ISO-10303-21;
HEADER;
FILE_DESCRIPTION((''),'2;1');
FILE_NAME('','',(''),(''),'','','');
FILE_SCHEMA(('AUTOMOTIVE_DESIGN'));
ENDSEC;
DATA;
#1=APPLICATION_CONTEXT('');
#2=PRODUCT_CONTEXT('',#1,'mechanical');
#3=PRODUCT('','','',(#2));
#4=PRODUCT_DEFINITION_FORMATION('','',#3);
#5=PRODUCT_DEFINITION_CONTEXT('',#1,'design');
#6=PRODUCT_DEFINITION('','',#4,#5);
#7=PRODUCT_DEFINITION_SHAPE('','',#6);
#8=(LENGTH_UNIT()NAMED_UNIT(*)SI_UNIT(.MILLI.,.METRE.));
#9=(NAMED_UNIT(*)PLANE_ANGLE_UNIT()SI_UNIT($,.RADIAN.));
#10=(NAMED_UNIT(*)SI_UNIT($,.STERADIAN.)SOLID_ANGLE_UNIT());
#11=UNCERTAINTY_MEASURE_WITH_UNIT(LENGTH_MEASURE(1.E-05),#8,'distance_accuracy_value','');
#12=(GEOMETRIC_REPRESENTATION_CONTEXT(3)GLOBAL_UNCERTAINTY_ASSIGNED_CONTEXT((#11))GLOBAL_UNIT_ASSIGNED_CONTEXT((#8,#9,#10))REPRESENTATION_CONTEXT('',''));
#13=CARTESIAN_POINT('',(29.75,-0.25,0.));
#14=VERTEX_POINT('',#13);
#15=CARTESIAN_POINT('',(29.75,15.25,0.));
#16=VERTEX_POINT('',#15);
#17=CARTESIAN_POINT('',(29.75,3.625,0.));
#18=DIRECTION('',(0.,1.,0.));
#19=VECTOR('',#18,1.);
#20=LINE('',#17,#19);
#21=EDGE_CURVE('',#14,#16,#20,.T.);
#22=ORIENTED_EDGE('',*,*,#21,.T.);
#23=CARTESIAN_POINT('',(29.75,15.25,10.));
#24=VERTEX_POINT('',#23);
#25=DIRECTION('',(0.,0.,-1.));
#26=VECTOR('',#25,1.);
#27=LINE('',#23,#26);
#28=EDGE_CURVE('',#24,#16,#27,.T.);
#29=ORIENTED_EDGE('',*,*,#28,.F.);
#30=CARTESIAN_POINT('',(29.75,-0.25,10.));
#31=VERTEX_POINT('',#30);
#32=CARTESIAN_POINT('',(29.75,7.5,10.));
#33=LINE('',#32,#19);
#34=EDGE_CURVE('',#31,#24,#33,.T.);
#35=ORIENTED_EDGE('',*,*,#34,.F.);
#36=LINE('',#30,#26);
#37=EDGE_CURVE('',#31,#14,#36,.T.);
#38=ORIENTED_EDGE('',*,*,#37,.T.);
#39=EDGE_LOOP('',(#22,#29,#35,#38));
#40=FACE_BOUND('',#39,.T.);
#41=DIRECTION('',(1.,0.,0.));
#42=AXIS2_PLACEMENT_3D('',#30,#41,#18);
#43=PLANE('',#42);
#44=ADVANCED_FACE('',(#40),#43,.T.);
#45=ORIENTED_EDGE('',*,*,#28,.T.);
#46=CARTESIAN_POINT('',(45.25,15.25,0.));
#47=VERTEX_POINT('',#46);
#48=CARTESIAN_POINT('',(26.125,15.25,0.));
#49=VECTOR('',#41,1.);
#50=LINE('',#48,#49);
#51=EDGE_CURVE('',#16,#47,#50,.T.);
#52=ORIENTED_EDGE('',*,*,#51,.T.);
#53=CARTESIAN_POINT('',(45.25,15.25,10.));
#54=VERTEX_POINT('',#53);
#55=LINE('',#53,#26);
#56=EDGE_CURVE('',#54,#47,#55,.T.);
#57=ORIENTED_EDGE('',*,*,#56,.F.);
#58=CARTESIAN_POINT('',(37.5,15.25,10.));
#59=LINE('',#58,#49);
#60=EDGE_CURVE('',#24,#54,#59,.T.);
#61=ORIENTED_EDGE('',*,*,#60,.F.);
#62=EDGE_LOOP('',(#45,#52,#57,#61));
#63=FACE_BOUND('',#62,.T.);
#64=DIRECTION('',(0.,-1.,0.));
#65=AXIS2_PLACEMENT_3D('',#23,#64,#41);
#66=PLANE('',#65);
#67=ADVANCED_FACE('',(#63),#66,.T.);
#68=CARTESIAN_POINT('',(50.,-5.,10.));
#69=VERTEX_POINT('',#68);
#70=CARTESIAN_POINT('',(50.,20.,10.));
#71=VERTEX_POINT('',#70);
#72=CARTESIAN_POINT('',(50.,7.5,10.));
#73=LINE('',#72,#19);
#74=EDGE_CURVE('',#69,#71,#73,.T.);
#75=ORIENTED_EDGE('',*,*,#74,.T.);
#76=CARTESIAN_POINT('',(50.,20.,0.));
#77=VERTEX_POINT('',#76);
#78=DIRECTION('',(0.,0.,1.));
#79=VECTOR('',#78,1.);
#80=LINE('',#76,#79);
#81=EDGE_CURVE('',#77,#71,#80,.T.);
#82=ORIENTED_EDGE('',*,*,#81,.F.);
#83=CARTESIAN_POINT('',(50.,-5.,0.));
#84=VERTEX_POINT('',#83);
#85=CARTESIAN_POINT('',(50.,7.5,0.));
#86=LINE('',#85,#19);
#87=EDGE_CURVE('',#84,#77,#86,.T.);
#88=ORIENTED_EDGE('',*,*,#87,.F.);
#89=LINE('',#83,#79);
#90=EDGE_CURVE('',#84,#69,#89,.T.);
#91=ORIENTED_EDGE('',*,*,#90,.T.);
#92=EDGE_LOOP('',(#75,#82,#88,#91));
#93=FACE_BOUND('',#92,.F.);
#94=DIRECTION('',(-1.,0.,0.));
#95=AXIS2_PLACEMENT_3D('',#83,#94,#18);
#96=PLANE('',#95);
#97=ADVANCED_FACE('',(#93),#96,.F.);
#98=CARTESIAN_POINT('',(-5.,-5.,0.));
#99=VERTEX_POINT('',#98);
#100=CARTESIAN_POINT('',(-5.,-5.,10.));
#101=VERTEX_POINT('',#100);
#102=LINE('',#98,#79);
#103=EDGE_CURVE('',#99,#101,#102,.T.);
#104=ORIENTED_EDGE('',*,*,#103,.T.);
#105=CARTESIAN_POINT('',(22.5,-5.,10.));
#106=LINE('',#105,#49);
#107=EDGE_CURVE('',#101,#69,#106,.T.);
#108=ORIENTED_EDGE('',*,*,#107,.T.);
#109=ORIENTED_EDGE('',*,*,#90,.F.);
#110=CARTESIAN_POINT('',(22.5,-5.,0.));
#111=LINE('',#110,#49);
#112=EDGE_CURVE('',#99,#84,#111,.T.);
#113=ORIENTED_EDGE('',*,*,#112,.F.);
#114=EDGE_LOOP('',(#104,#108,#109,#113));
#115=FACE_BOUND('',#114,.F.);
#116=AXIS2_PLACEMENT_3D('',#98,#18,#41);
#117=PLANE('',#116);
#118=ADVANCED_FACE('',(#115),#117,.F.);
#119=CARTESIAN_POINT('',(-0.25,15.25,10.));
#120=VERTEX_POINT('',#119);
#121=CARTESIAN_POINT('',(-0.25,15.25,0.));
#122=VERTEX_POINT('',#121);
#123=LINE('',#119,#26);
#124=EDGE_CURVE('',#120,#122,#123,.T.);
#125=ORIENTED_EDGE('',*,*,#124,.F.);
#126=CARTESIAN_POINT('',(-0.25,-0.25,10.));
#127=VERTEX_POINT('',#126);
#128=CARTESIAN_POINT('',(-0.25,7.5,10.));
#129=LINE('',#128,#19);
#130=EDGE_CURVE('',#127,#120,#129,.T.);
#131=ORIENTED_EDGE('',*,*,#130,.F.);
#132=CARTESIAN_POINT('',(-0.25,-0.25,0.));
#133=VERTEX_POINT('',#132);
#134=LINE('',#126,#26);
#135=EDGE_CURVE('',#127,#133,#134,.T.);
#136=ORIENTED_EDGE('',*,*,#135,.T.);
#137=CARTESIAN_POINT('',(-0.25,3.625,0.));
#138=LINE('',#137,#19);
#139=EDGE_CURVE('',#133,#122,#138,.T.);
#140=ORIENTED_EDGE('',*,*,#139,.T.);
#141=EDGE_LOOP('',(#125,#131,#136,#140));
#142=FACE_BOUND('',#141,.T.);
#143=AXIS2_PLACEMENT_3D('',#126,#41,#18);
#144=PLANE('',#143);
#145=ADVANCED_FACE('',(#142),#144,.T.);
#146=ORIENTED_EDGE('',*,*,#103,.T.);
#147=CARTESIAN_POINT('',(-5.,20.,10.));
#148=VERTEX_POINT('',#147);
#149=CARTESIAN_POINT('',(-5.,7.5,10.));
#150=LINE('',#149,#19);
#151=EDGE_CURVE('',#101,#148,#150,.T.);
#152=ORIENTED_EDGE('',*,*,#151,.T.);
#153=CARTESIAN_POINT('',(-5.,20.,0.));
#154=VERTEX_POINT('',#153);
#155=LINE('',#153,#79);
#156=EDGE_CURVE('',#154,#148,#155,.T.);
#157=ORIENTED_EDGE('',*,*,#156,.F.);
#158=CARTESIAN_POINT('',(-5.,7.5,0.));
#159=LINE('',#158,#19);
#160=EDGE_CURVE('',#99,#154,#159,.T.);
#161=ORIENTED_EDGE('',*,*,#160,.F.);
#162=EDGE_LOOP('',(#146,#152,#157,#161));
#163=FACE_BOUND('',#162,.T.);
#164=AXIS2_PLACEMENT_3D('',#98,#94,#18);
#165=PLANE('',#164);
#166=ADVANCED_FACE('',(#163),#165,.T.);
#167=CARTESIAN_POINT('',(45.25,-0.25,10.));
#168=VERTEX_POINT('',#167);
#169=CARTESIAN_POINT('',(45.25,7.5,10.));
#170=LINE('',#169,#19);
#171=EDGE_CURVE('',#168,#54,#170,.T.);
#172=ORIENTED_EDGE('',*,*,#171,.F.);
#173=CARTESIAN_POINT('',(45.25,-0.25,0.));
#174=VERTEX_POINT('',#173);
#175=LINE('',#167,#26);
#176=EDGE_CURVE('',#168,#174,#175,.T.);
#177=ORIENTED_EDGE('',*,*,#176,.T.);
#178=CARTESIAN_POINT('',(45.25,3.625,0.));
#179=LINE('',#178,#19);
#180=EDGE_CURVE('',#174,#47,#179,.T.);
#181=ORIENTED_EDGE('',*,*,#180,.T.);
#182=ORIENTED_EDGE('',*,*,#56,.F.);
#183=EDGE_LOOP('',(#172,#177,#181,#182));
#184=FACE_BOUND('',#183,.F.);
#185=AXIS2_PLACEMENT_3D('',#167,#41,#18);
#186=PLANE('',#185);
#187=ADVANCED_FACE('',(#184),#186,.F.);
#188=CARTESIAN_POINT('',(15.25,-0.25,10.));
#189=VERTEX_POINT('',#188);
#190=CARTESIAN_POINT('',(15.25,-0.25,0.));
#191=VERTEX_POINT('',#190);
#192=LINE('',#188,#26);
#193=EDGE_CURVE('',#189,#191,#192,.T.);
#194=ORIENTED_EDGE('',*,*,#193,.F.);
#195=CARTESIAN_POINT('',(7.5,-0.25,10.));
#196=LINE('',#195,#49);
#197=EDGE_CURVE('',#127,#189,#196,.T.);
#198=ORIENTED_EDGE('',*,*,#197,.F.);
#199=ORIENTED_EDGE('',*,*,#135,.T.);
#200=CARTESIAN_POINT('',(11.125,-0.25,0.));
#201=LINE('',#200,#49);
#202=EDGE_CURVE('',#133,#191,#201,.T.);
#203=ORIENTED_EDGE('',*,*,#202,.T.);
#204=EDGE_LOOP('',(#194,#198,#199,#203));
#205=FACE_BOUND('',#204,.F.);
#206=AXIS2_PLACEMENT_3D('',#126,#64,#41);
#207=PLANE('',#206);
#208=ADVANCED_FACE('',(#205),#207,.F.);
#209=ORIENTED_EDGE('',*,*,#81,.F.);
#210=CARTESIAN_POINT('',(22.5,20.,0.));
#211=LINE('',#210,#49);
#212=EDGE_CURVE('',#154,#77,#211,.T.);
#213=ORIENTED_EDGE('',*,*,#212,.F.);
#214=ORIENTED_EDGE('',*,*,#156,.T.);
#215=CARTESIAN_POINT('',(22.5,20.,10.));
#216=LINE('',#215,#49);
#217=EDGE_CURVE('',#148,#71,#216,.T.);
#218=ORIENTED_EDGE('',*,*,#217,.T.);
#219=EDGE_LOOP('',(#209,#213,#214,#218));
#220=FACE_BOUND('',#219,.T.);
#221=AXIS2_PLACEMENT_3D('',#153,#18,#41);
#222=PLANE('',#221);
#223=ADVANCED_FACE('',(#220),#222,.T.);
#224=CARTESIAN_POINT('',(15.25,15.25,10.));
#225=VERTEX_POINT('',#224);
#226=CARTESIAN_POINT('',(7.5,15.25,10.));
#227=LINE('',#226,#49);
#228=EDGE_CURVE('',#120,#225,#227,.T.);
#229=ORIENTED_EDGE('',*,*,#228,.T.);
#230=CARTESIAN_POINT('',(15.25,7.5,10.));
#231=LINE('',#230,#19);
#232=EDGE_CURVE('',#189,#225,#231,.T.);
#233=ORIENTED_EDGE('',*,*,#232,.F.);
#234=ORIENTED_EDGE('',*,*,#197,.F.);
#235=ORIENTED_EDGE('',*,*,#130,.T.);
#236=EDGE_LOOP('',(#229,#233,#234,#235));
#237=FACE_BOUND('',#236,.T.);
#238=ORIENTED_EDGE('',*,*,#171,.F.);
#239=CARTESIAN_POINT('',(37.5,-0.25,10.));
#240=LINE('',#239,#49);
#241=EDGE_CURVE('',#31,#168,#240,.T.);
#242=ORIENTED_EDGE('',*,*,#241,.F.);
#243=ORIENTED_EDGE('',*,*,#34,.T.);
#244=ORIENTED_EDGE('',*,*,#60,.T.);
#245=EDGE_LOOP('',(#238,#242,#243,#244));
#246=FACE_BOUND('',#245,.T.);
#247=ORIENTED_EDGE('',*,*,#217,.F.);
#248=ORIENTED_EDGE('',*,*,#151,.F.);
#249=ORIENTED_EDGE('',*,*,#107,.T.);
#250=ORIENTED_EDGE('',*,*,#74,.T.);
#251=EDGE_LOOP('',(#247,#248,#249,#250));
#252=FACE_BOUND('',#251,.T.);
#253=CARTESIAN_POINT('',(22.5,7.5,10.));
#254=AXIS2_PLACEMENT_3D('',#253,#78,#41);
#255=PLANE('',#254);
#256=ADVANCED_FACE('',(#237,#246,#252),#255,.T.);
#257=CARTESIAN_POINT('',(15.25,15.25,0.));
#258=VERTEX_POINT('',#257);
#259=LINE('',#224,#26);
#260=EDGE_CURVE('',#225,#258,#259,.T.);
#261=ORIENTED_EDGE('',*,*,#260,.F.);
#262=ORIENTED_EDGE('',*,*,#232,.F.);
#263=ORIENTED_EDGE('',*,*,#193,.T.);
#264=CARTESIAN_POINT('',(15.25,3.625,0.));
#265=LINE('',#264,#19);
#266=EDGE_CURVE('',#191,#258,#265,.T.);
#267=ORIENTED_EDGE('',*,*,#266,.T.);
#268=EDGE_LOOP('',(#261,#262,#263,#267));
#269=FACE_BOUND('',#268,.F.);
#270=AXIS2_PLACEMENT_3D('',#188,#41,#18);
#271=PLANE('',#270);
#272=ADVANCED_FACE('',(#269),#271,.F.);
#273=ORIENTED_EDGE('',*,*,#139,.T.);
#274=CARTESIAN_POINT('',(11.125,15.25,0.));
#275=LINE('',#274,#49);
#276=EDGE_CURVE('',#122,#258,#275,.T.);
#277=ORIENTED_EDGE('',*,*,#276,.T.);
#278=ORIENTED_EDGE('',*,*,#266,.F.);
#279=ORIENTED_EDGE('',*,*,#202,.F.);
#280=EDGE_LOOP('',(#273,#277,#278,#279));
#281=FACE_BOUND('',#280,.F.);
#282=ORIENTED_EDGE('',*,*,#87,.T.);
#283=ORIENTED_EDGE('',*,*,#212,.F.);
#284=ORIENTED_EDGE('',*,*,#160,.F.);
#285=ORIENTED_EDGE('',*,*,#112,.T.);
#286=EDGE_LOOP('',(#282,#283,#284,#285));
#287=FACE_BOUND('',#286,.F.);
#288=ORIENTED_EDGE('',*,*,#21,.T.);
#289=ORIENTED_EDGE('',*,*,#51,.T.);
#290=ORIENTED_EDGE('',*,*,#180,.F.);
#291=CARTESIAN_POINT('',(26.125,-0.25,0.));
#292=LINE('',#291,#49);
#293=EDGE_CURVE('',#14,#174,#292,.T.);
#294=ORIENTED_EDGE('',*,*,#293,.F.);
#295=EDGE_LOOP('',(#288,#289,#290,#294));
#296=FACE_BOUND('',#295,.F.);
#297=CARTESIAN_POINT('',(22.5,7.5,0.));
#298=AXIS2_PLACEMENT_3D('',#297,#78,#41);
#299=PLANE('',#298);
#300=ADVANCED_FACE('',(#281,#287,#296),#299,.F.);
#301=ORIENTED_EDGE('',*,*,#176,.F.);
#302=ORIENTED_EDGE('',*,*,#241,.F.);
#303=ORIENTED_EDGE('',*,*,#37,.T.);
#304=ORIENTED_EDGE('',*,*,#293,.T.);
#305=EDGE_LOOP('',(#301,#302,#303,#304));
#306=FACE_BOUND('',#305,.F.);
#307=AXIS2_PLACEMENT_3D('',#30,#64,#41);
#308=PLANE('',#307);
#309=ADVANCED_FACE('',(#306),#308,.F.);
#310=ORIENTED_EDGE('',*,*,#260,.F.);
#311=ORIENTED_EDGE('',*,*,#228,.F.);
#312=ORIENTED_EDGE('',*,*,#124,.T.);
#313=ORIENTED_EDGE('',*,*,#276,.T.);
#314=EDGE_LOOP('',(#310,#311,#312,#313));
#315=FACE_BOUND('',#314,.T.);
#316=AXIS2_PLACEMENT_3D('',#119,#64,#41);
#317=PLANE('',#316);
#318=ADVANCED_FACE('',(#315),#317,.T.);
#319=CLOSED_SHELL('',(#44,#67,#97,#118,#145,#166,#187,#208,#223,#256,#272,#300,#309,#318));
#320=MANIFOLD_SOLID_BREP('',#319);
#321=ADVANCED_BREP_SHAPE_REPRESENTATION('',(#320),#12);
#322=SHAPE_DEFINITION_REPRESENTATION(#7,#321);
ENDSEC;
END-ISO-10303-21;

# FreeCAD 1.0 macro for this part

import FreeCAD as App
import Part
import Sketcher
Q = App.Units.Quantity


def add_polygon(sketch, points):
    """Adds a closed chain of lines whose ends are joined by coincident constraints."""
    first, n = sketch.GeometryCount, len(points)
    for a, b in zip(points, points[1:] + points[:1]):
        sketch.addGeometry(Part.LineSegment(App.Vector(*a, 0), App.Vector(*b, 0)), False)
    for i in range(n):
        sketch.addConstraint(Sketcher.Constraint("Coincident", first + i, 2, first + (i + 1) % n, 1))

doc = App.newDocument("Part")
params = doc.addObject("Spreadsheet::Sheet", "Params")
for row, (alias, value) in enumerate([
    ("sketch1_width", "55 mm"),
    ("sketch1_width2", "15 mm"),
    ("sketch1_height", "25 mm"),
    ("pad1_length", "10 mm"),
    ("sketch2_width", "15.5 mm"),
], start=1):
    params.set(f"A{row}", alias)
    params.set(f"B{row}", "=" + value)
    params.setAlias(f"B{row}", alias)

body = doc.addObject("PartDesign::Body", "Body")

sketch1 = doc.addObject("Sketcher::SketchObject", "Sketch")
body.addObject(sketch1)
sketch1.AttachmentSupport = (doc.XY_Plane, [""])
sketch1.MapMode = "FlatFace"
add_polygon(sketch1, [(-5, 20), (-5, -5), (50, -5), (50, 20)])
add_polygon(sketch1, [(15, 0), (0, 0), (0, 15), (15, 15)])
add_polygon(sketch1, [(45, 0), (30, 0), (30, 15), (45, 15)])
sketch1.addConstraint(Sketcher.Constraint("Vertical", 0))
sketch1.addConstraint(Sketcher.Constraint("Horizontal", 1))
sketch1.addConstraint(Sketcher.Constraint("Vertical", 2))
sketch1.addConstraint(Sketcher.Constraint("Horizontal", 3))
sketch1.addConstraint(Sketcher.Constraint("Horizontal", 4))
sketch1.addConstraint(Sketcher.Constraint("Vertical", 5))
sketch1.addConstraint(Sketcher.Constraint("Horizontal", 6))
sketch1.addConstraint(Sketcher.Constraint("Vertical", 7))
sketch1.addConstraint(Sketcher.Constraint("Horizontal", 8))
sketch1.addConstraint(Sketcher.Constraint("Vertical", 9))
sketch1.addConstraint(Sketcher.Constraint("Horizontal", 10))
sketch1.addConstraint(Sketcher.Constraint("Vertical", 11))
sketch1.addConstraint(Sketcher.Constraint("Coincident", 4, 2, -1, 1))
sketch1.addConstraint(Sketcher.Constraint("PointOnObject", 8, 2, -1))
sketch1.addConstraint(Sketcher.Constraint("Horizontal", 6, 2, 9, 2))
sketch1.addConstraint(Sketcher.Constraint("Equal", 6, 8))
sketch1.addConstraint(Sketcher.Constraint("Equal", 10, 5))
sketch1.addConstraint(Sketcher.Constraint("DistanceX", 1, 1, 1, 2, Q("55 mm")))
sketch1.addConstraint(Sketcher.Constraint("DistanceX", 4, 2, 4, 1, Q("15 mm")))
sketch1.addConstraint(Sketcher.Constraint("DistanceY", 0, 2, 0, 1, Q("25 mm")))
sketch1.addConstraint(Sketcher.Constraint("DistanceX", 0, 2, -1, 1, Q("5 mm")))
sketch1.addConstraint(Sketcher.Constraint("DistanceY", 0, 2, -1, 1, Q("5 mm")))
sketch1.addConstraint(Sketcher.Constraint("DistanceX", -1, 1, 8, 2, Q("30 mm")))
sketch1.setExpression("Constraints[29]", "Params.sketch1_width")
sketch1.setExpression("Constraints[30]", "Params.sketch1_width2")
sketch1.setExpression("Constraints[31]", "Params.sketch1_height")
pad1 = doc.addObject("PartDesign::Pad", "Pad")
body.addObject(pad1)
pad1.Profile = sketch1
pad1.setExpression("Length", "Params.pad1_length")

sketch2 = doc.addObject("Sketcher::SketchObject", "Sketch001")
body.addObject(sketch2)
sketch2.AttachmentSupport = (doc.XY_Plane, [""])
sketch2.MapMode = "FlatFace"
sketch2.AttachmentOffset = App.Placement(App.Vector(0, 0, 10), App.Rotation())
add_polygon(sketch2, [(0, 15), (0, 0), (15, 0), (15, 15)])
add_polygon(sketch2, [(30, 15), (30, 0), (45, 0), (45, 15)])
sketch2.addConstraint(Sketcher.Constraint("Vertical", 0))
sketch2.addConstraint(Sketcher.Constraint("Horizontal", 1))
sketch2.addConstraint(Sketcher.Constraint("Vertical", 2))
sketch2.addConstraint(Sketcher.Constraint("Horizontal", 3))
sketch2.addConstraint(Sketcher.Constraint("Vertical", 4))
sketch2.addConstraint(Sketcher.Constraint("Horizontal", 5))
sketch2.addConstraint(Sketcher.Constraint("Vertical", 6))
sketch2.addConstraint(Sketcher.Constraint("Horizontal", 7))
sketch2.addConstraint(Sketcher.Constraint("Horizontal", 1, 2, 4, 2))
sketch2.addConstraint(Sketcher.Constraint("Horizontal", 3, 2, 6, 2))
sketch2.addConstraint(Sketcher.Constraint("Equal", 3, 5))
sketch2.addConstraint(Sketcher.Constraint("Equal", 7, 0))
sketch2.addConstraint(Sketcher.Constraint("DistanceX", 1, 1, 1, 2, Q("15.5 mm")))
sketch2.addConstraint(Sketcher.Constraint("DistanceX", 0, 2, 4, 2, Q("30 mm")))
sketch2.addConstraint(Sketcher.Constraint("DistanceX", 0, 2, -1, 1, Q("0.25 mm")))
sketch2.addConstraint(Sketcher.Constraint("DistanceY", 0, 2, -1, 1, Q("0.25 mm")))
sketch2.setExpression("Constraints[20]", "Params.sketch2_width")
pocket1 = doc.addObject("PartDesign::Pocket", "Pocket")
body.addObject(pocket1)
pocket1.Profile = sketch2
pocket1.Type = "ThroughAll"

doc.recompute()
